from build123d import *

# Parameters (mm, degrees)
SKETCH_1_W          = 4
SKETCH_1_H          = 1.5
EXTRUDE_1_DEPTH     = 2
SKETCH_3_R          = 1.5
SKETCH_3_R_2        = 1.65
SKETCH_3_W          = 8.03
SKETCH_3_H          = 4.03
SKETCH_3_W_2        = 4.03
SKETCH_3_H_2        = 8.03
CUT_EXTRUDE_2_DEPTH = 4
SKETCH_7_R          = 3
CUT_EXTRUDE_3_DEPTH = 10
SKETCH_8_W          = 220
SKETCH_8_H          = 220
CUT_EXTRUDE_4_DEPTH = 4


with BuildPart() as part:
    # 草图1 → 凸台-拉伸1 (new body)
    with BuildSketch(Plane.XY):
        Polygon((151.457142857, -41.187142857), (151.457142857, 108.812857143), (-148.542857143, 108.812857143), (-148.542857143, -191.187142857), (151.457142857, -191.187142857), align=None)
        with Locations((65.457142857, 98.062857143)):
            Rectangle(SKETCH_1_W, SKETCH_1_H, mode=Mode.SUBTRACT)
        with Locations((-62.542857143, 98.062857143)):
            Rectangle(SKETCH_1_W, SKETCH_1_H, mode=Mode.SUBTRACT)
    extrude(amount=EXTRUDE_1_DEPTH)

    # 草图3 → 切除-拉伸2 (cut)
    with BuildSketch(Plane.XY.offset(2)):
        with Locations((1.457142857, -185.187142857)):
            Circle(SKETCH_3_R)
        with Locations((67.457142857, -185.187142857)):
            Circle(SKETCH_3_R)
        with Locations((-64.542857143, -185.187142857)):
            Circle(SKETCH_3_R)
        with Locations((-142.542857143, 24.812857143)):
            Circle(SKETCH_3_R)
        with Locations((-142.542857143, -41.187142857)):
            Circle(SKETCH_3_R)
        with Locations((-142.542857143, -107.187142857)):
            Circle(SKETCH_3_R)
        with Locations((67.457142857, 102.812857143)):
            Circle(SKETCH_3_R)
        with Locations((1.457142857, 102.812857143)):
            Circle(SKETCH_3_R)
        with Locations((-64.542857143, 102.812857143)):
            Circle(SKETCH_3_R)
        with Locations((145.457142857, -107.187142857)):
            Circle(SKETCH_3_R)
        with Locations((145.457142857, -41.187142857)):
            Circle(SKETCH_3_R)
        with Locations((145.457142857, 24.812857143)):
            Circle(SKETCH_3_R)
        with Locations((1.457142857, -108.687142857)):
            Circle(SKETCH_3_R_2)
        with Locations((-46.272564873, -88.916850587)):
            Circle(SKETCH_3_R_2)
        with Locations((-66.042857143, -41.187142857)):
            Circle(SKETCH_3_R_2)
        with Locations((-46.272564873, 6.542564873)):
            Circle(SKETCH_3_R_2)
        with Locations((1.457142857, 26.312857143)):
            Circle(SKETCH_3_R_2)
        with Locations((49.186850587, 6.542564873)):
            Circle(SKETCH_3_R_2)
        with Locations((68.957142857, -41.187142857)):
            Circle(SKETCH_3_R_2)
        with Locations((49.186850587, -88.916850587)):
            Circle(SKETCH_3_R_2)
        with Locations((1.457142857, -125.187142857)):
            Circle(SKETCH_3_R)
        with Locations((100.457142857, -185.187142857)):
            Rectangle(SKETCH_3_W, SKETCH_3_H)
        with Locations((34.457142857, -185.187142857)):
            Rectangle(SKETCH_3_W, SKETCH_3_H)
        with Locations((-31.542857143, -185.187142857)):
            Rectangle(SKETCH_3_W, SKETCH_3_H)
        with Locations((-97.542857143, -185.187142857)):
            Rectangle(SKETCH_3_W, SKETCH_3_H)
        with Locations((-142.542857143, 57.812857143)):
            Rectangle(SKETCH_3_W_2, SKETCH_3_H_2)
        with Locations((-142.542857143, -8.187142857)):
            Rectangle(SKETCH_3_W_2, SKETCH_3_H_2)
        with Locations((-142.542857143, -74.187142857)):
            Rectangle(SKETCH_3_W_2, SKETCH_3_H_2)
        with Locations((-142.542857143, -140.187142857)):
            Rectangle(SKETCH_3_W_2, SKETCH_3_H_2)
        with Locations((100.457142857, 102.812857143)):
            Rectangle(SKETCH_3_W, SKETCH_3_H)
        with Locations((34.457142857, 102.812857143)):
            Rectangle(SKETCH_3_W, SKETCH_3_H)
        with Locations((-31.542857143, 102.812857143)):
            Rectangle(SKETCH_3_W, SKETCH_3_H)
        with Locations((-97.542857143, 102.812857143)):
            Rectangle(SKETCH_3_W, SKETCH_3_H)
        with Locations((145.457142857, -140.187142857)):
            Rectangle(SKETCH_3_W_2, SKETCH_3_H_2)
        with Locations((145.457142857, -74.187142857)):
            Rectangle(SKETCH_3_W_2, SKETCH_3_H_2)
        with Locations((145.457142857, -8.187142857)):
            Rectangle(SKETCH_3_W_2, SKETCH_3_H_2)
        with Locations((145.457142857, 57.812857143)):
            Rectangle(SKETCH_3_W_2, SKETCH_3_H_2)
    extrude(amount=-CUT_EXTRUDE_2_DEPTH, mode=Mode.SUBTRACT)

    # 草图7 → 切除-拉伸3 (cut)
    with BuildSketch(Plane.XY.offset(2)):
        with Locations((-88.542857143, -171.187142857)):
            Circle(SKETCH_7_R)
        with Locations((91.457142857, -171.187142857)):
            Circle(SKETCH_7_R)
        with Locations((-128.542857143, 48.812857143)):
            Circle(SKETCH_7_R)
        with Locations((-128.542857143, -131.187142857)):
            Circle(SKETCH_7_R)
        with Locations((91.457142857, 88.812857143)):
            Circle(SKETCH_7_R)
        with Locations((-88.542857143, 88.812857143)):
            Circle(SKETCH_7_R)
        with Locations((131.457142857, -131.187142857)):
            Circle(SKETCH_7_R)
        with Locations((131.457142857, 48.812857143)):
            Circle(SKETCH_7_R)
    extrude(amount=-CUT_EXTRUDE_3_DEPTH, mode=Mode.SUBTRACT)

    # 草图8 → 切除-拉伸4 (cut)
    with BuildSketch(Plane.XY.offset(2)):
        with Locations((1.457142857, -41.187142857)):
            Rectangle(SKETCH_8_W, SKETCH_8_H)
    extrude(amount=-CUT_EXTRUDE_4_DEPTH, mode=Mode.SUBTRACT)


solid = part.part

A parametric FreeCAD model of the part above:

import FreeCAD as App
import Part
import Sketcher

V = App.Vector
Q = App.Units.Quantity


def add_polygon(sketch, points):
    """Adds a closed chain of lines whose ends are joined by coincident constraints."""
    first, n = sketch.GeometryCount, len(points)
    for a, b in zip(points, points[1:] + points[:1]):
        sketch.addGeometry(Part.LineSegment(App.Vector(*a, 0), App.Vector(*b, 0)), False)
    for i in range(n):
        sketch.addConstraint(Sketcher.Constraint("Coincident", first + i, 2, first + (i + 1) % n, 1))

doc = App.newDocument("Part")
body = doc.addObject("PartDesign::Body", "Body")

sketch1 = doc.addObject("Sketcher::SketchObject", "Sketch")
body.addObject(sketch1)
sketch1.AttachmentSupport = (doc.XY_Plane, [""])
sketch1.MapMode = "FlatFace"
add_polygon(sketch1, [(151.5, 108.8), (-148.5, 108.8), (-148.5, -191.2), (151.5, -191.2)])
add_polygon(sketch1, [(-60.5, 97.3), (-64.5, 97.3), (-64.5, 98.8), (-60.5, 98.8)])
add_polygon(sketch1, [(67.5, 97.3), (63.5, 97.3), (63.5, 98.8), (67.5, 98.8)])
sketch1.addConstraint([
    Sketcher.Constraint("Horizontal", 0),
    Sketcher.Constraint("Vertical", 1),
    Sketcher.Constraint("Horizontal", 2),
    Sketcher.Constraint("Vertical", 3),
    Sketcher.Constraint("Horizontal", 4),
    Sketcher.Constraint("Vertical", 5),
    Sketcher.Constraint("Horizontal", 6),
    Sketcher.Constraint("Vertical", 7),
    Sketcher.Constraint("Horizontal", 8),
    Sketcher.Constraint("Vertical", 9),
    Sketcher.Constraint("Horizontal", 10),
    Sketcher.Constraint("Vertical", 11),
    Sketcher.Constraint("Horizontal", 7, 2, 8, 2),
    Sketcher.Constraint("Horizontal", 6, 2, 9, 2),
    Sketcher.Constraint("Equal", 6, 8),
    Sketcher.Constraint("Equal", 2, 1),
    Sketcher.Constraint("DistanceX", 0, 2, 0, 1, Q("300 mm")),
    Sketcher.Constraint("DistanceX", 4, 2, 4, 1, Q("4 mm")),
    Sketcher.Constraint("DistanceY", 5, 1, 5, 2, Q("1.5 mm")),
    Sketcher.Constraint("DistanceX", 0, 2, 4, 2, Q("84 mm")),
    Sketcher.Constraint("DistanceY", 5, 2, 0, 2, Q("10 mm")),
    Sketcher.Constraint("DistanceX", 8, 2, 3, 2, Q("88 mm")),
    Sketcher.Constraint("DistanceX", 0, 2, -1, 1, Q("148.542857 mm")),
    Sketcher.Constraint("DistanceY", -1, 1, 0, 2, Q("108.812857 mm")),
])
pad1 = doc.addObject("PartDesign::Pad", "Pad")
body.addObject(pad1)
pad1.Profile = sketch1
pad1.Length = 2

sketch2 = doc.addObject("Sketcher::SketchObject", "Sketch001")
body.addObject(sketch2)
sketch2.AttachmentSupport = (doc.XY_Plane, [""])
sketch2.MapMode = "FlatFace"
sketch2.AttachmentOffset = App.Placement(V(0, 0, 2), App.Rotation())
sketch2.addGeometry(Part.Circle(V(1.5, -185.2, 0), V(0, 0, 1), 1.5), False)
sketch2.addGeometry(Part.Circle(V(67.5, -185.2, 0), V(0, 0, 1), 1.5), False)
sketch2.addGeometry(Part.Circle(V(-64.5, -185.2, 0), V(0, 0, 1), 1.5), False)
sketch2.addGeometry(Part.Circle(V(-142.5, 24.8, 0), V(0, 0, 1), 1.5), False)
sketch2.addGeometry(Part.Circle(V(-142.5, -41.2, 0), V(0, 0, 1), 1.5), False)
sketch2.addGeometry(Part.Circle(V(-142.5, -107.2, 0), V(0, 0, 1), 1.5), False)
sketch2.addGeometry(Part.Circle(V(67.5, 102.8, 0), V(0, 0, 1), 1.5), False)
sketch2.addGeometry(Part.Circle(V(1.5, 102.8, 0), V(0, 0, 1), 1.5), False)
sketch2.addGeometry(Part.Circle(V(-64.5, 102.8, 0), V(0, 0, 1), 1.5), False)
sketch2.addGeometry(Part.Circle(V(145.5, -107.2, 0), V(0, 0, 1), 1.5), False)
sketch2.addGeometry(Part.Circle(V(145.5, -41.2, 0), V(0, 0, 1), 1.5), False)
sketch2.addGeometry(Part.Circle(V(145.5, 24.8, 0), V(0, 0, 1), 1.5), False)
sketch2.addGeometry(Part.Circle(V(1.5, -108.7, 0), V(0, 0, 1), 1.6), False)
sketch2.addGeometry(Part.Circle(V(-46.3, -88.9, 0), V(0, 0, 1), 1.6), False)
sketch2.addGeometry(Part.Circle(V(-66, -41.2, 0), V(0, 0, 1), 1.6), False)
sketch2.addGeometry(Part.Circle(V(-46.3, 6.5, 0), V(0, 0, 1), 1.6), False)
sketch2.addGeometry(Part.Circle(V(1.5, 26.3, 0), V(0, 0, 1), 1.6), False)
sketch2.addGeometry(Part.Circle(V(49.2, 6.5, 0), V(0, 0, 1), 1.6), False)
sketch2.addGeometry(Part.Circle(V(69, -41.2, 0), V(0, 0, 1), 1.6), False)
sketch2.addGeometry(Part.Circle(V(49.2, -88.9, 0), V(0, 0, 1), 1.6), False)
sketch2.addGeometry(Part.Circle(V(1.5, -125.2, 0), V(0, 0, 1), 1.5), False)
add_polygon(sketch2, [(96.4, -183.2), (96.4, -187.2), (104.5, -187.2), (104.5, -183.2)])
add_polygon(sketch2, [(30.4, -183.2), (30.4, -187.2), (38.5, -187.2), (38.5, -183.2)])
add_polygon(sketch2, [(-35.6, -183.2), (-35.6, -187.2), (-27.5, -187.2), (-27.5, -183.2)])
add_polygon(sketch2, [(-101.6, -183.2), (-101.6, -187.2), (-93.5, -187.2), (-93.5, -183.2)])
add_polygon(sketch2, [(-144.6, 61.8), (-144.6, 53.8), (-140.5, 53.8), (-140.5, 61.8)])
add_polygon(sketch2, [(-144.6, -4.2), (-144.6, -12.2), (-140.5, -12.2), (-140.5, -4.2)])
add_polygon(sketch2, [(-144.6, -70.2), (-144.6, -78.2), (-140.5, -78.2), (-140.5, -70.2)])
add_polygon(sketch2, [(-144.6, -136.2), (-144.6, -144.2), (-140.5, -144.2), (-140.5, -136.2)])
add_polygon(sketch2, [(96.4, 104.8), (96.4, 100.8), (104.5, 100.8), (104.5, 104.8)])
add_polygon(sketch2, [(30.4, 104.8), (30.4, 100.8), (38.5, 100.8), (38.5, 104.8)])
add_polygon(sketch2, [(-35.6, 104.8), (-35.6, 100.8), (-27.5, 100.8), (-27.5, 104.8)])
add_polygon(sketch2, [(-101.6, 104.8), (-101.6, 100.8), (-93.5, 100.8), (-93.5, 104.8)])
add_polygon(sketch2, [(143.4, -136.2), (143.4, -144.2), (147.5, -144.2), (147.5, -136.2)])
add_polygon(sketch2, [(143.4, -70.2), (143.4, -78.2), (147.5, -78.2), (147.5, -70.2)])
add_polygon(sketch2, [(143.4, -4.2), (143.4, -12.2), (147.5, -12.2), (147.5, -4.2)])
add_polygon(sketch2, [(143.4, 61.8), (143.4, 53.8), (147.5, 53.8), (147.5, 61.8)])
sketch2.addConstraint([
    Sketcher.Constraint("Vertical", 21),
    Sketcher.Constraint("Horizontal", 22),
    Sketcher.Constraint("Vertical", 23),
    Sketcher.Constraint("Horizontal", 24),
    Sketcher.Constraint("Vertical", 25),
    Sketcher.Constraint("Horizontal", 26),
    Sketcher.Constraint("Vertical", 27),
    Sketcher.Constraint("Horizontal", 28),
    Sketcher.Constraint("Vertical", 29),
    Sketcher.Constraint("Horizontal", 30),
    Sketcher.Constraint("Vertical", 31),
    Sketcher.Constraint("Horizontal", 32),
    Sketcher.Constraint("Vertical", 33),
    Sketcher.Constraint("Horizontal", 34),
    Sketcher.Constraint("Vertical", 35),
    Sketcher.Constraint("Horizontal", 36),
    Sketcher.Constraint("Vertical", 37),
    Sketcher.Constraint("Horizontal", 38),
    Sketcher.Constraint("Vertical", 39),
    Sketcher.Constraint("Horizontal", 40),
    Sketcher.Constraint("Vertical", 41),
    Sketcher.Constraint("Horizontal", 42),
    Sketcher.Constraint("Vertical", 43),
    Sketcher.Constraint("Horizontal", 44),
    Sketcher.Constraint("Vertical", 45),
    Sketcher.Constraint("Horizontal", 46),
    Sketcher.Constraint("Vertical", 47),
    Sketcher.Constraint("Horizontal", 48),
    Sketcher.Constraint("Vertical", 49),
    Sketcher.Constraint("Horizontal", 50),
    Sketcher.Constraint("Vertical", 51),
    Sketcher.Constraint("Horizontal", 52),
    Sketcher.Constraint("Vertical", 53),
    Sketcher.Constraint("Horizontal", 54),
    Sketcher.Constraint("Vertical", 55),
    Sketcher.Constraint("Horizontal", 56),
    Sketcher.Constraint("Vertical", 57),
    Sketcher.Constraint("Horizontal", 58),
    Sketcher.Constraint("Vertical", 59),
    Sketcher.Constraint("Horizontal", 60),
    Sketcher.Constraint("Vertical", 61),
    Sketcher.Constraint("Horizontal", 62),
    Sketcher.Constraint("Vertical", 63),
    Sketcher.Constraint("Horizontal", 64),
    Sketcher.Constraint("Vertical", 65),
    Sketcher.Constraint("Horizontal", 66),
    Sketcher.Constraint("Vertical", 67),
    Sketcher.Constraint("Horizontal", 68),
    Sketcher.Constraint("Vertical", 69),
    Sketcher.Constraint("Horizontal", 70),
    Sketcher.Constraint("Vertical", 71),
    Sketcher.Constraint("Horizontal", 72),
    Sketcher.Constraint("Vertical", 73),
    Sketcher.Constraint("Horizontal", 74),
    Sketcher.Constraint("Vertical", 75),
    Sketcher.Constraint("Horizontal", 76),
    Sketcher.Constraint("Vertical", 77),
    Sketcher.Constraint("Horizontal", 78),
    Sketcher.Constraint("Vertical", 79),
    Sketcher.Constraint("Horizontal", 80),
    Sketcher.Constraint("Vertical", 81),
    Sketcher.Constraint("Horizontal", 82),
    Sketcher.Constraint("Vertical", 83),
    Sketcher.Constraint("Horizontal", 84),
    Sketcher.Constraint("Equal", 0, 1),
    Sketcher.Constraint("Equal", 1, 2),
    Sketcher.Constraint("Equal", 2, 3),
    Sketcher.Constraint("Equal", 3, 4),
    Sketcher.Constraint("Equal", 4, 5),
    Sketcher.Constraint("Equal", 5, 6),
    Sketcher.Constraint("Equal", 6, 7),
    Sketcher.Constraint("Equal", 7, 8),
    Sketcher.Constraint("Equal", 8, 9),
    Sketcher.Constraint("Equal", 9, 10),
    Sketcher.Constraint("Equal", 10, 11),
    Sketcher.Constraint("Equal", 12, 13),
    Sketcher.Constraint("Equal", 13, 14),
    Sketcher.Constraint("Equal", 14, 15),
    Sketcher.Constraint("Equal", 15, 16),
    Sketcher.Constraint("Equal", 16, 17),
    Sketcher.Constraint("Equal", 17, 18),
    Sketcher.Constraint("Equal", 18, 19),
    Sketcher.Constraint("Equal", 11, 20),
    Sketcher.Constraint("Horizontal", 0, 3, 1, 3),
    Sketcher.Constraint("Horizontal", 1, 3, 2, 3),
    Sketcher.Constraint("Horizontal", 6, 3, 7, 3),
    Sketcher.Constraint("Horizontal", 7, 3, 8, 3),
    Sketcher.Constraint("Horizontal", 5, 3, 9, 3),
    Sketcher.Constraint("Horizontal", 4, 3, 10, 3),
    Sketcher.Constraint("Horizontal", 3, 3, 11, 3),
    Sketcher.Constraint("Horizontal", 10, 3, 14, 3),
    Sketcher.Constraint("Horizontal", 15, 3, 17, 3),
    Sketcher.Constraint("Horizontal", 14, 3, 18, 3),
    Sketcher.Constraint("Horizontal", 13, 3, 19, 3),
    Sketcher.Constraint("Horizontal", 22, 2, 25, 2),
    Sketcher.Constraint("Horizontal", 24, 2, 27, 2),
    Sketcher.Constraint("Horizontal", 26, 2, 29, 2),
    Sketcher.Constraint("Horizontal", 28, 2, 31, 2),
    Sketcher.Constraint("Horizontal", 30, 2, 33, 2),
    Sketcher.Constraint("Horizontal", 32, 2, 35, 2),
    Sketcher.Constraint("Horizontal", 54, 2, 57, 2),
    Sketcher.Constraint("Horizontal", 56, 2, 59, 2),
    Sketcher.Constraint("Horizontal", 58, 2, 61, 2),
    Sketcher.Constraint("Horizontal", 60, 2, 63, 2),
    Sketcher.Constraint("Horizontal", 62, 2, 65, 2),
    Sketcher.Constraint("Horizontal", 64, 2, 67, 2),
    Sketcher.Constraint("Horizontal", 50, 2, 69, 2),
    Sketcher.Constraint("Horizontal", 52, 2, 71, 2),
    Sketcher.Constraint("Horizontal", 46, 2, 73, 2),
    Sketcher.Constraint("Horizontal", 48, 2, 75, 2),
    Sketcher.Constraint("Horizontal", 42, 2, 77, 2),
    Sketcher.Constraint("Horizontal", 44, 2, 79, 2),
    Sketcher.Constraint("Horizontal", 38, 2, 81, 2),
    Sketcher.Constraint("Horizontal", 40, 2, 83, 2),
    Sketcher.Constraint("Vertical", 3, 3, 4, 3),
    Sketcher.Constraint("Vertical", 4, 3, 5, 3),
    Sketcher.Constraint("Vertical", 1, 3, 6, 3),
    Sketcher.Constraint("Vertical", 0, 3, 7, 3),
    Sketcher.Constraint("Vertical", 2, 3, 8, 3),
    Sketcher.Constraint("Vertical", 9, 3, 10, 3),
    Sketcher.Constraint("Vertical", 10, 3, 11, 3),
    Sketcher.Constraint("Vertical", 7, 3, 12, 3),
    Sketcher.Constraint("Vertical", 13, 3, 15, 3),
    Sketcher.Constraint("Vertical", 12, 3, 16, 3),
    Sketcher.Constraint("Vertical", 17, 3, 19, 3),
    Sketcher.Constraint("Vertical", 16, 3, 20, 3),
    Sketcher.Constraint("Vertical", 40, 2, 41, 2),
    Sketcher.Constraint("Vertical", 39, 2, 42, 2),
    Sketcher.Constraint("Vertical", 44, 2, 45, 2),
    Sketcher.Constraint("Vertical", 43, 2, 46, 2),
    Sketcher.Constraint("Vertical", 48, 2, 49, 2),
    Sketcher.Constraint("Vertical", 47, 2, 50, 2),
    Sketcher.Constraint("Vertical", 24, 2, 53, 2),
    Sketcher.Constraint("Vertical", 23, 2, 54, 2),
    Sketcher.Constraint("Vertical", 28, 2, 57, 2),
    Sketcher.Constraint("Vertical", 27, 2, 58, 2),
    Sketcher.Constraint("Vertical", 32, 2, 61, 2),
    Sketcher.Constraint("Vertical", 31, 2, 62, 2),
    Sketcher.Constraint("Vertical", 36, 2, 65, 2),
    Sketcher.Constraint("Vertical", 35, 2, 66, 2),
    Sketcher.Constraint("Vertical", 72, 2, 73, 2),
    Sketcher.Constraint("Vertical", 71, 2, 74, 2),
    Sketcher.Constraint("Vertical", 76, 2, 77, 2),
    Sketcher.Constraint("Vertical", 75, 2, 78, 2),
    Sketcher.Constraint("Vertical", 80, 2, 81, 2),
    Sketcher.Constraint("Vertical", 79, 2, 82, 2),
    Sketcher.Constraint("Equal", 24, 26),
    Sketcher.Constraint("Equal", 28, 30),
    Sketcher.Constraint("Equal", 32, 34),
    Sketcher.Constraint("Equal", 52, 70),
    Sketcher.Constraint("Equal", 84, 21),
    Sketcher.Constraint("Equal", 68, 37),
    Sketcher.Constraint("Equal", 39, 41),
    Sketcher.Constraint("Equal", 43, 45),
    Sketcher.Constraint("Equal", 47, 49),
    Sketcher.Constraint("Equal", 35, 53),
    Sketcher.Constraint("Diameter", 0, Q("3 mm")),
    Sketcher.Constraint("Diameter", 12, Q("3.3 mm")),
    Sketcher.Constraint("DistanceX", 22, 1, 22, 2, Q("8.03 mm")),
    Sketcher.Constraint("DistanceX", 38, 1, 38, 2, Q("4.03 mm")),
    Sketcher.Constraint("DistanceY", 13, 3, -1, 1, Q("88.916851 mm")),
    Sketcher.Constraint("DistanceX", -1, 1, 17, 3, Q("49.186851 mm")),
    Sketcher.Constraint("DistanceX", -1, 1, 0, 3, Q("1.457143 mm")),
    Sketcher.Constraint("DistanceY", 0, 3, -1, 1, Q("185.187143 mm")),
    Sketcher.Constraint("DistanceX", -1, 1, 1, 3, Q("67.457143 mm")),
    Sketcher.Constraint("DistanceX", 2, 3, -1, 1, Q("64.542857 mm")),
    Sketcher.Constraint("DistanceX", 3, 3, -1, 1, Q("142.542857 mm")),
    Sketcher.Constraint("DistanceY", -1, 1, 3, 3, Q("24.812857 mm")),
    Sketcher.Constraint("DistanceY", 4, 3, -1, 1, Q("41.187143 mm")),
    Sketcher.Constraint("DistanceY", 5, 3, -1, 1, Q("107.187143 mm")),
    Sketcher.Constraint("DistanceY", -1, 1, 6, 3, Q("102.812857 mm")),
    Sketcher.Constraint("DistanceX", -1, 1, 9, 3, Q("145.457143 mm")),
    Sketcher.Constraint("DistanceY", 12, 3, -1, 1, Q("108.687143 mm")),
    Sketcher.Constraint("DistanceX", 13, 3, -1, 1, Q("46.272565 mm")),
    Sketcher.Constraint("DistanceX", 14, 3, -1, 1, Q("66.042857 mm")),
    Sketcher.Constraint("DistanceY", -1, 1, 15, 3, Q("6.542565 mm")),
    Sketcher.Constraint("DistanceY", -1, 1, 16, 3, Q("26.312857 mm")),
    Sketcher.Constraint("DistanceX", -1, 1, 18, 3, Q("68.957143 mm")),
    Sketcher.Constraint("DistanceY", 20, 3, -1, 1, Q("125.187143 mm")),
    Sketcher.Constraint("DistanceX", -1, 1, 21, 2, Q("96.442143 mm")),
    Sketcher.Constraint("DistanceY", 21, 2, -1, 1, Q("187.202143 mm")),
    Sketcher.Constraint("DistanceX", -1, 1, 25, 2, Q("30.442143 mm")),
    Sketcher.Constraint("DistanceX", 29, 2, -1, 1, Q("35.557857 mm")),
    Sketcher.Constraint("DistanceX", 33, 2, -1, 1, Q("101.557857 mm")),
    Sketcher.Constraint("DistanceX", 37, 2, -1, 1, Q("144.557857 mm")),
    Sketcher.Constraint("DistanceY", -1, 1, 37, 2, Q("53.797857 mm")),
    Sketcher.Constraint("DistanceY", 41, 2, -1, 1, Q("12.202143 mm")),
    Sketcher.Constraint("DistanceY", 45, 2, -1, 1, Q("78.202143 mm")),
    Sketcher.Constraint("DistanceY", 49, 2, -1, 1, Q("144.202143 mm")),
    Sketcher.Constraint("DistanceY", -1, 1, 53, 2, Q("100.797857 mm")),
    Sketcher.Constraint("DistanceX", -1, 1, 69, 2, Q("143.442143 mm")),
])
pocket1 = doc.addObject("PartDesign::Pocket", "Pocket")
body.addObject(pocket1)
pocket1.Profile = sketch2
pocket1.Length = 4

sketch3 = doc.addObject("Sketcher::SketchObject", "Sketch002")
body.addObject(sketch3)
sketch3.AttachmentSupport = (doc.XY_Plane, [""])
sketch3.MapMode = "FlatFace"
sketch3.AttachmentOffset = App.Placement(V(0, 0, 2), App.Rotation())
sketch3.addGeometry([
    Part.Circle(V(-88.5, -171.2, 0), V(0, 0, 1), 3),
    Part.Circle(V(91.5, -171.2, 0), V(0, 0, 1), 3),
    Part.Circle(V(-128.5, 48.8, 0), V(0, 0, 1), 3),
    Part.Circle(V(-128.5, -131.2, 0), V(0, 0, 1), 3),
    Part.Circle(V(91.5, 88.8, 0), V(0, 0, 1), 3),
    Part.Circle(V(-88.5, 88.8, 0), V(0, 0, 1), 3),
    Part.Circle(V(131.5, -131.2, 0), V(0, 0, 1), 3),
    Part.Circle(V(131.5, 48.8, 0), V(0, 0, 1), 3),
], False)
sketch3.addConstraint([
    Sketcher.Constraint("Equal", 0, 1),
    Sketcher.Constraint("Equal", 1, 2),
    Sketcher.Constraint("Equal", 2, 3),
    Sketcher.Constraint("Equal", 3, 4),
    Sketcher.Constraint("Equal", 4, 5),
    Sketcher.Constraint("Equal", 5, 6),
    Sketcher.Constraint("Equal", 6, 7),
    Sketcher.Constraint("Horizontal", 0, 3, 1, 3),
    Sketcher.Constraint("Horizontal", 4, 3, 5, 3),
    Sketcher.Constraint("Horizontal", 3, 3, 6, 3),
    Sketcher.Constraint("Horizontal", 2, 3, 7, 3),
    Sketcher.Constraint("Vertical", 2, 3, 3, 3),
    Sketcher.Constraint("Vertical", 1, 3, 4, 3),
    Sketcher.Constraint("Vertical", 0, 3, 5, 3),
    Sketcher.Constraint("Vertical", 6, 3, 7, 3),
    Sketcher.Constraint("Diameter", 0, Q("6 mm")),
    Sketcher.Constraint("DistanceX", 0, 3, 1, 3, Q("180 mm")),
    Sketcher.Constraint("DistanceX", 2, 3, 0, 3, Q("40 mm")),
    Sketcher.Constraint("DistanceY", 0, 3, 2, 3, Q("220 mm")),
    Sketcher.Constraint("DistanceY", 0, 3, 3, 3, Q("40 mm")),
    Sketcher.Constraint("DistanceY", 2, 3, 4, 3, Q("40 mm")),
    Sketcher.Constraint("DistanceX", 1, 3, 6, 3, Q("40 mm")),
    Sketcher.Constraint("DistanceX", 0, 3, -1, 1, Q("88.542857 mm")),
    Sketcher.Constraint("DistanceY", 0, 3, -1, 1, Q("171.187143 mm")),
])
pocket2 = doc.addObject("PartDesign::Pocket", "Pocket001")
body.addObject(pocket2)
pocket2.Profile = sketch3
pocket2.Length = 10

sketch4 = doc.addObject("Sketcher::SketchObject", "Sketch003")
body.addObject(sketch4)
sketch4.AttachmentSupport = (doc.XY_Plane, [""])
sketch4.MapMode = "FlatFace"
sketch4.AttachmentOffset = App.Placement(V(0, 0, 2), App.Rotation())
add_polygon(sketch4, [(-109, 69), (-109, -151), (111, -151), (111, 69)])
sketch4.addConstraint([
    Sketcher.Constraint("Vertical", 0),
    Sketcher.Constraint("Horizontal", 1),
    Sketcher.Constraint("Vertical", 2),
    Sketcher.Constraint("Horizontal", 3),
    Sketcher.Constraint("Equal", 3, 0),
    Sketcher.Constraint("DistanceX", 1, 1, 1, 2, Q("220 mm")),
    Sketcher.Constraint("DistanceX", 0, 2, -1, 1, Q("108.542857 mm")),
    Sketcher.Constraint("DistanceY", 0, 2, -1, 1, Q("151.187143 mm")),
])
pocket3 = doc.addObject("PartDesign::Pocket", "Pocket002")
body.addObject(pocket3)
pocket3.Profile = sketch4
pocket3.Length = 4

doc.recompute()
